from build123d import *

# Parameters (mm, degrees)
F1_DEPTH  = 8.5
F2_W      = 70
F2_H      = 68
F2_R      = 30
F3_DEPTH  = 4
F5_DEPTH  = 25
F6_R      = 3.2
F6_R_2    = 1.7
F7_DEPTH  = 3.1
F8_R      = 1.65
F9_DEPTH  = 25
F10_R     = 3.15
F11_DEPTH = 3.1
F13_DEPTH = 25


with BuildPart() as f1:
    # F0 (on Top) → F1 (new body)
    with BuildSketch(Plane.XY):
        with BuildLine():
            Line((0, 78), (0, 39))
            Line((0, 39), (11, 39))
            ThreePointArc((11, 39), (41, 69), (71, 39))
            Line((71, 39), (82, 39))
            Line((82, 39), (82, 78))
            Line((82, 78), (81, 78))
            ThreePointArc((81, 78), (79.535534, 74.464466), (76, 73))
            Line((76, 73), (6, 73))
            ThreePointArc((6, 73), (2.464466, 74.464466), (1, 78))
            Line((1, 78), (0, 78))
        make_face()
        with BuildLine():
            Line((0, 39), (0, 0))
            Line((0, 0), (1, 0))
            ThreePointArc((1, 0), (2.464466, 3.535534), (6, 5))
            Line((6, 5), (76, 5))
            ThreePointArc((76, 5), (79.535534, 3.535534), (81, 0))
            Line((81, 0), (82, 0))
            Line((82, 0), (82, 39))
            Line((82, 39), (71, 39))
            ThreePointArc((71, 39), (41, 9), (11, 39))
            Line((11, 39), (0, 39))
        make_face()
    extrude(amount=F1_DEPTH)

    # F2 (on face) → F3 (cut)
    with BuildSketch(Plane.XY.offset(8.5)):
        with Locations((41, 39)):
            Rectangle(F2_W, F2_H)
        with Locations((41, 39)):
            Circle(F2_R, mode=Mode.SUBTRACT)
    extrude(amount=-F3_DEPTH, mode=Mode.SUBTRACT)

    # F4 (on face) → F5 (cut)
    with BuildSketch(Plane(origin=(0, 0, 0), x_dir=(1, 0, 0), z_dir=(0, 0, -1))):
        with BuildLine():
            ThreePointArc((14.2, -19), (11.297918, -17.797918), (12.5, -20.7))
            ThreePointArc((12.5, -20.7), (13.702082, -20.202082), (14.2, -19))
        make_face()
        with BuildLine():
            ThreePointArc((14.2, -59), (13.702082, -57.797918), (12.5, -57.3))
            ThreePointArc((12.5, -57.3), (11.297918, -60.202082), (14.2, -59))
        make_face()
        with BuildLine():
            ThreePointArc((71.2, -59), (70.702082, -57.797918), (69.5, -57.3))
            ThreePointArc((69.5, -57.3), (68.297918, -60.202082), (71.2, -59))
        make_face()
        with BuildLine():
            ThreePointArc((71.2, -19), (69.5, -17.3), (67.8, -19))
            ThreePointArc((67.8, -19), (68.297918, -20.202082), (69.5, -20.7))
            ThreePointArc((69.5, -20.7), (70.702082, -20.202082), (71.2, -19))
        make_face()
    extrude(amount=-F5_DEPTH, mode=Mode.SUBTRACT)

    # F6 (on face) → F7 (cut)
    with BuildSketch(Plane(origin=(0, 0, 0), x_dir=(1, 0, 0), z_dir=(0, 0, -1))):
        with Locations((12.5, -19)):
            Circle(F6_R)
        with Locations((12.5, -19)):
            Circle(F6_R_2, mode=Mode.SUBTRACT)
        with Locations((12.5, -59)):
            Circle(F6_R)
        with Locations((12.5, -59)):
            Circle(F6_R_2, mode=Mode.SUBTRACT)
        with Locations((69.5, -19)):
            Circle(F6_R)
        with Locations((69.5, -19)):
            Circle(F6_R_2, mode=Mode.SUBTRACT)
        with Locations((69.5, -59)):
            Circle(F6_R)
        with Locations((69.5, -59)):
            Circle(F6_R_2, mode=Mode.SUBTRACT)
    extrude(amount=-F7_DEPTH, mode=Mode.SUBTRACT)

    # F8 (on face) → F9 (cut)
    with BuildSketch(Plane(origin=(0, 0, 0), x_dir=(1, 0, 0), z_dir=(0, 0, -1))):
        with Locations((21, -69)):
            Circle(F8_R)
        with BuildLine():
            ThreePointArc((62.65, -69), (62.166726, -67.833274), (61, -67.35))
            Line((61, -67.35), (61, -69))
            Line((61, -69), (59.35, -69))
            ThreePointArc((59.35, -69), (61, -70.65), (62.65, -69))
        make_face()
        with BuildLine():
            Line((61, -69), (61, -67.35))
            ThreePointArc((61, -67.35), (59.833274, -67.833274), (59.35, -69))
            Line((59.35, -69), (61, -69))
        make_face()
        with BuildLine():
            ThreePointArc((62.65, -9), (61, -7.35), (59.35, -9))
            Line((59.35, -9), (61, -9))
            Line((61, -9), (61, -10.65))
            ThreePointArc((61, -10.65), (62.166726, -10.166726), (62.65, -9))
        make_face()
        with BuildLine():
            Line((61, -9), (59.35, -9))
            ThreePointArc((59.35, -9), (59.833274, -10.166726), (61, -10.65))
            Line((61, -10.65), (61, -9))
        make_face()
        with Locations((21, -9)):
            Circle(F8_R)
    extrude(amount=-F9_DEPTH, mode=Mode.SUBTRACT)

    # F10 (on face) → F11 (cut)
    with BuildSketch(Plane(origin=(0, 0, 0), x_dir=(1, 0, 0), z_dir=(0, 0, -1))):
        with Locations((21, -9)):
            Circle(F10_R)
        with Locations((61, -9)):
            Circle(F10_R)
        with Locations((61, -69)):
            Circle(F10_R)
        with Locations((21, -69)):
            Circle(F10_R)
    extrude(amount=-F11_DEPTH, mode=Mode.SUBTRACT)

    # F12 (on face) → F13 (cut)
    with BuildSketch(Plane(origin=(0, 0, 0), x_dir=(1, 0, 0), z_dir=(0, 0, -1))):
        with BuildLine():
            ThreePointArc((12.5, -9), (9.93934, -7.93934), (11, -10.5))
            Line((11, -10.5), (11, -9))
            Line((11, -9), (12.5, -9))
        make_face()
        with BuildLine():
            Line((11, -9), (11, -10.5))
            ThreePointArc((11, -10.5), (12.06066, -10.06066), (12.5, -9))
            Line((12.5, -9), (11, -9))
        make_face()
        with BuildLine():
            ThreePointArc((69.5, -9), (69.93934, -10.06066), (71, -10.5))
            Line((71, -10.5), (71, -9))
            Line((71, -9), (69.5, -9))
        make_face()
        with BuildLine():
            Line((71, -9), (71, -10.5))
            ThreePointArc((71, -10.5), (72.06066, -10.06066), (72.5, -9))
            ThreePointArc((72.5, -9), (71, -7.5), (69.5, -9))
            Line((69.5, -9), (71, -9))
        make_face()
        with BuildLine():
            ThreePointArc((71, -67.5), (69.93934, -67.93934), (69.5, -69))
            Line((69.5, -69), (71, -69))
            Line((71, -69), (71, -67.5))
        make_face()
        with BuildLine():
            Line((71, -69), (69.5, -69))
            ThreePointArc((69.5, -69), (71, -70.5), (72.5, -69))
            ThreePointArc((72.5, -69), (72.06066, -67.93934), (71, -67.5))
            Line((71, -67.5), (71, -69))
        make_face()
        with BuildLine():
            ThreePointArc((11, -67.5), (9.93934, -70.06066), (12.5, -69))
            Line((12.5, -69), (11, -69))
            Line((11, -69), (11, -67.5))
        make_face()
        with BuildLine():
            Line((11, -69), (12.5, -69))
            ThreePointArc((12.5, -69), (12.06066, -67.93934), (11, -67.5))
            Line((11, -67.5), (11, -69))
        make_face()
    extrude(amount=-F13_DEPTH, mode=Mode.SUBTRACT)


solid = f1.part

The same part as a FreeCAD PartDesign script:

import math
import FreeCAD as App
import Part
import Sketcher
Q = App.Units.Quantity


def add_polygon(sketch, points):
    """Adds a closed chain of lines whose ends are joined by coincident constraints."""
    first, n = sketch.GeometryCount, len(points)
    for a, b in zip(points, points[1:] + points[:1]):
        sketch.addGeometry(Part.LineSegment(App.Vector(*a, 0), App.Vector(*b, 0)), False)
    for i in range(n):
        sketch.addConstraint(Sketcher.Constraint("Coincident", first + i, 2, first + (i + 1) % n, 1))

doc = App.newDocument("Part")
body = doc.addObject("PartDesign::Body", "Body")

sketch1 = body.newObject("Sketcher::SketchObject", "Sketch")
sketch1.AttachmentSupport = (doc.getObject("XY_Plane"), [""])
sketch1.MapMode = "FlatFace"
sketch1.addGeometry([
    Part.LineSegment(App.Vector(0, 78, 0), App.Vector(0, 0, 0)),
    Part.LineSegment(App.Vector(0, 0, 0), App.Vector(1, 0, 0)),
    Part.ArcOfCircle(Part.Circle(App.Vector(6, 0, 0), App.Vector(0, 0, 1), 5), math.radians(89.999996), math.radians(180.000004)),
    Part.LineSegment(App.Vector(6, 5, 0), App.Vector(76, 5, 0)),
    Part.ArcOfCircle(Part.Circle(App.Vector(76, 0, 0), App.Vector(0, 0, 1), 5), math.radians(-0.000004), math.radians(90.000004)),
    Part.LineSegment(App.Vector(81, 0, 0), App.Vector(82, 0, 0)),
    Part.LineSegment(App.Vector(82, 0, 0), App.Vector(82, 78, 0)),
    Part.LineSegment(App.Vector(82, 78, 0), App.Vector(81, 78, 0)),
    Part.ArcOfCircle(Part.Circle(App.Vector(76, 78, 0), App.Vector(0, 0, 1), 5), math.radians(-90.000004), math.radians(0.000004)),
    Part.LineSegment(App.Vector(76, 73, 0), App.Vector(6, 73, 0)),
    Part.ArcOfCircle(Part.Circle(App.Vector(6, 78, 0), App.Vector(0, 0, 1), 5), math.radians(179.999996), math.radians(270.000004)),
    Part.LineSegment(App.Vector(1, 78, 0), App.Vector(0, 78, 0)),
    Part.Circle(App.Vector(41, 39, 0), App.Vector(0, 0, 1), 30),
], False)
sketch1.addConstraint([
    Sketcher.Constraint("Coincident", 0, 2, 1, 1),
    Sketcher.Constraint("Coincident", 1, 2, 2, 2),
    Sketcher.Constraint("Tangent", 2, 1, 3, 1),
    Sketcher.Constraint("Tangent", 3, 2, 4, 2),
    Sketcher.Constraint("Coincident", 4, 1, 5, 1),
    Sketcher.Constraint("Coincident", 5, 2, 6, 1),
    Sketcher.Constraint("Coincident", 6, 2, 7, 1),
    Sketcher.Constraint("Coincident", 7, 2, 8, 2),
    Sketcher.Constraint("Tangent", 8, 1, 9, 1),
    Sketcher.Constraint("Tangent", 9, 2, 10, 2),
    Sketcher.Constraint("Coincident", 10, 1, 11, 1),
    Sketcher.Constraint("Coincident", 11, 2, 0, 1),
    Sketcher.Constraint("Vertical", 0),
    Sketcher.Constraint("Horizontal", 1),
    Sketcher.Constraint("Horizontal", 3),
    Sketcher.Constraint("Horizontal", 5),
    Sketcher.Constraint("Vertical", 6),
    Sketcher.Constraint("Horizontal", 7),
    Sketcher.Constraint("Horizontal", 9),
    Sketcher.Constraint("Horizontal", 11),
    Sketcher.Constraint("Coincident", 0, 2, -1, 1),
    Sketcher.Constraint("Equal", 2, 4),
    Sketcher.Constraint("Equal", 4, 8),
    Sketcher.Constraint("Equal", 8, 10),
    Sketcher.Constraint("PointOnObject", 2, 3, -1),
    Sketcher.Constraint("PointOnObject", 4, 1, -1),
    Sketcher.Constraint("Horizontal", 10, 3, 6, 2),
    Sketcher.Constraint("Horizontal", 7, 2, 10, 1),
    Sketcher.Constraint("Vertical", 4, 3, 8, 3),
    Sketcher.Constraint("Vertical", 2, 3, 10, 3),
    Sketcher.Constraint("Equal", 1, 5),
    Sketcher.Constraint("Diameter", 12, Q("60 mm")),
    Sketcher.Constraint("Radius", 2, Q("5 mm")),
    Sketcher.Constraint("DistanceX", 1, 1, 1, 2, Q("1 mm")),
    Sketcher.Constraint("DistanceX", 3, 1, 3, 2, Q("70 mm")),
    Sketcher.Constraint("DistanceY", 0, 2, 0, 1, Q("78 mm")),
    Sketcher.Constraint("DistanceX", -1, 1, 12, 3, Q("41 mm")),
    Sketcher.Constraint("DistanceY", -1, 1, 12, 3, Q("39 mm")),
])
pad1 = body.newObject("PartDesign::Pad", "Pad")
pad1.Profile = sketch1
pad1.Length = 8.5

sketch2 = body.newObject("Sketcher::SketchObject", "Sketch001")
sketch2.AttachmentSupport = (doc.getObject("XY_Plane"), [""])
sketch2.MapMode = "FlatFace"
sketch2.AttachmentOffset = App.Placement(App.Vector(0, 0, 8.5), App.Rotation())
add_polygon(sketch2, [(6, 73), (6, 5), (76, 5), (76, 73)])
sketch2.addGeometry(Part.Circle(App.Vector(41, 39, 0), App.Vector(0, 0, 1), 30), False)
sketch2.addConstraint([
    Sketcher.Constraint("Vertical", 0),
    Sketcher.Constraint("Horizontal", 1),
    Sketcher.Constraint("Vertical", 2),
    Sketcher.Constraint("Horizontal", 3),
    Sketcher.Constraint("Diameter", 4, Q("60 mm")),
    Sketcher.Constraint("DistanceX", 1, 1, 1, 2, Q("70 mm")),
    Sketcher.Constraint("DistanceY", 0, 2, 0, 1, Q("68 mm")),
    Sketcher.Constraint("DistanceX", -1, 1, 4, 3, Q("41 mm")),
    Sketcher.Constraint("DistanceY", -1, 1, 4, 3, Q("39 mm")),
    Sketcher.Constraint("DistanceX", -1, 1, 0, 2, Q("6 mm")),
    Sketcher.Constraint("DistanceY", -1, 1, 0, 2, Q("5 mm")),
])
pocket1 = body.newObject("PartDesign::Pocket", "Pocket")
pocket1.Profile = sketch2
pocket1.Length = 4

sketch3 = body.newObject("Sketcher::SketchObject", "Sketch002")
sketch3.AttachmentSupport = (doc.getObject("XY_Plane"), [""])
sketch3.MapMode = "FlatFace"
sketch3.addGeometry([
    Part.ArcOfCircle(Part.Circle(App.Vector(12.5, 19, 0), App.Vector(0, 0, 1), 1.7), math.radians(89.999991), math.radians(360.000009)),
    Part.ArcOfCircle(Part.Circle(App.Vector(12.500002, 19.000002, 0), App.Vector(0, 0, 1), 1.699998), math.radians(-0.000054), math.radians(90.000054)),
    Part.ArcOfCircle(Part.Circle(App.Vector(12.500002, 58.999998, 0), App.Vector(0, 0, 1), 1.699998), math.radians(-90.000054), math.radians(0.000054)),
    Part.ArcOfCircle(Part.Circle(App.Vector(12.5, 59, 0), App.Vector(0, 0, 1), 1.7), math.radians(-0.000009), math.radians(270.000009)),
    Part.ArcOfCircle(Part.Circle(App.Vector(69.500002, 58.999998, 0), App.Vector(0, 0, 1), 1.699998), math.radians(-90.000054), math.radians(0.000054)),
    Part.ArcOfCircle(Part.Circle(App.Vector(69.5, 59, 0), App.Vector(0, 0, 1), 1.7), math.radians(-0.000009), math.radians(270.000009)),
    Part.ArcOfCircle(Part.Circle(App.Vector(69.5, 19, 0), App.Vector(0, 0, 1), 1.7), math.radians(180), math.radians(360)),
    Part.ArcOfCircle(Part.Circle(App.Vector(69.499998, 19.000002, 0), App.Vector(0, 0, 1), 1.699998), math.radians(89.999946), math.radians(180.000054)),
    Part.ArcOfCircle(Part.Circle(App.Vector(69.500002, 19.000002, 0), App.Vector(0, 0, 1), 1.699998), math.radians(-0.000054), math.radians(90.000054)),
], False)
sketch3.addConstraint([
    Sketcher.Constraint("Tangent", 0, 1, 1, 2),
    Sketcher.Constraint("Coincident", 1, 1, 0, 2),
    Sketcher.Constraint("Tangent", 2, 1, 3, 2),
    Sketcher.Constraint("Coincident", 3, 1, 2, 2),
    Sketcher.Constraint("Tangent", 4, 1, 5, 2),
    Sketcher.Constraint("Coincident", 5, 1, 4, 2),
    Sketcher.Constraint("Tangent", 6, 1, 7, 2),
    Sketcher.Constraint("Tangent", 7, 1, 8, 2),
    Sketcher.Constraint("Tangent", 8, 1, 6, 2),
    Sketcher.Constraint("Equal", 1, 2),
    Sketcher.Constraint("Equal", 3, 4),
    Sketcher.Constraint("Equal", 5, 6),
    Sketcher.Constraint("Horizontal", 3, 3, 4, 3),
    Sketcher.Constraint("Horizontal", 1, 3, 6, 3),
    Sketcher.Constraint("Horizontal", 8, 3, 1, 1),
    Sketcher.Constraint("Horizontal", 5, 3, 3, 1),
    Sketcher.Constraint("Horizontal", 3, 1, 5, 1),
    Sketcher.Constraint("Horizontal", 1, 1, 6, 1),
    Sketcher.Constraint("Horizontal", 6, 1, 8, 1),
    Sketcher.Constraint("Vertical", 1, 3, 2, 3),
    Sketcher.Constraint("Vertical", 5, 3, 6, 3),
    Sketcher.Constraint("Vertical", 3, 3, 0, 1),
    Sketcher.Constraint("Vertical", 0, 1, 2, 1),
    Sketcher.Constraint("Vertical", 8, 3, 4, 1),
    Sketcher.Constraint("Vertical", 4, 1, 7, 1),
    Sketcher.Constraint("Radius", 0, Q("1.7 mm")),
    Sketcher.Constraint("DistanceY", -1, 1, 0, 3, Q("19 mm")),
    Sketcher.Constraint("DistanceY", -1, 1, 2, 3, Q("58.999998 mm")),
    Sketcher.Constraint("DistanceX", 2, 3, 4, 3, Q("57 mm")),
    Sketcher.Constraint("DistanceX", -1, 1, 0, 3, Q("12.5 mm")),
])
pocket2 = body.newObject("PartDesign::Pocket", "Pocket001")
pocket2.Profile = sketch3
pocket2.Length = 25
pocket2.Reversed = True

sketch4 = body.newObject("Sketcher::SketchObject", "Sketch003")
sketch4.AttachmentSupport = (doc.getObject("XY_Plane"), [""])
sketch4.MapMode = "FlatFace"
sketch4.addGeometry([
    Part.Circle(App.Vector(12.5, 19, 0), App.Vector(0, 0, 1), 3.2),
    Part.Circle(App.Vector(12.5, 19, 0), App.Vector(0, 0, 1), 1.7),
    Part.Circle(App.Vector(12.5, 59, 0), App.Vector(0, 0, 1), 3.2),
    Part.Circle(App.Vector(12.5, 59, 0), App.Vector(0, 0, 1), 1.7),
    Part.Circle(App.Vector(69.5, 19, 0), App.Vector(0, 0, 1), 3.2),
    Part.Circle(App.Vector(69.5, 19, 0), App.Vector(0, 0, 1), 1.7),
    Part.Circle(App.Vector(69.5, 59, 0), App.Vector(0, 0, 1), 3.2),
    Part.Circle(App.Vector(69.5, 59, 0), App.Vector(0, 0, 1), 1.7),
], False)
sketch4.addConstraint([
    Sketcher.Constraint("Coincident", 1, 3, 0, 3),
    Sketcher.Constraint("Coincident", 3, 3, 2, 3),
    Sketcher.Constraint("Coincident", 5, 3, 4, 3),
    Sketcher.Constraint("Coincident", 7, 3, 6, 3),
    Sketcher.Constraint("Equal", 0, 2),
    Sketcher.Constraint("Equal", 1, 3),
    Sketcher.Constraint("Equal", 2, 4),
    Sketcher.Constraint("Equal", 3, 5),
    Sketcher.Constraint("Equal", 4, 6),
    Sketcher.Constraint("Equal", 5, 7),
    Sketcher.Constraint("Horizontal", 1, 3, 4, 3),
    Sketcher.Constraint("Horizontal", 3, 3, 6, 3),
    Sketcher.Constraint("Vertical", 1, 3, 2, 3),
    Sketcher.Constraint("Vertical", 5, 3, 6, 3),
    Sketcher.Constraint("Diameter", 0, Q("6.4 mm")),
    Sketcher.Constraint("Diameter", 1, Q("3.4 mm")),
    Sketcher.Constraint("DistanceY", -1, 1, 0, 3, Q("19 mm")),
    Sketcher.Constraint("DistanceY", -1, 1, 2, 3, Q("59 mm")),
    Sketcher.Constraint("DistanceX", 0, 3, 4, 3, Q("57 mm")),
    Sketcher.Constraint("DistanceX", -1, 1, 0, 3, Q("12.5 mm")),
])
pocket3 = body.newObject("PartDesign::Pocket", "Pocket002")
pocket3.Profile = sketch4
pocket3.Length = 3.1
pocket3.Reversed = True

sketch5 = body.newObject("Sketcher::SketchObject", "Sketch004")
sketch5.AttachmentSupport = (doc.getObject("XY_Plane"), [""])
sketch5.MapMode = "FlatFace"
sketch5.addGeometry([
    Part.Circle(App.Vector(21, 69, 0), App.Vector(0, 0, 1), 1.65),
    Part.ArcOfCircle(Part.Circle(App.Vector(60.999999, 69.000001, 0), App.Vector(0, 0, 1), 1.650001), math.radians(-89.999978), math.radians(-0.000022)),
    Part.ArcOfCircle(Part.Circle(App.Vector(61.000001, 69.000001, 0), App.Vector(0, 0, 1), 1.650001), math.radians(-179.999978), math.radians(-90.000022)),
    Part.ArcOfCircle(Part.Circle(App.Vector(61, 69, 0), App.Vector(0, 0, 1), 1.65), math.radians(0), math.radians(180)),
    Part.ArcOfCircle(Part.Circle(App.Vector(61, 9, 0), App.Vector(0, 0, 1), 1.65), math.radians(180), math.radians(360)),
    Part.ArcOfCircle(Part.Circle(App.Vector(61.000001, 8.999999, 0), App.Vector(0, 0, 1), 1.650001), math.radians(90.000022), math.radians(179.999978)),
    Part.ArcOfCircle(Part.Circle(App.Vector(60.999999, 8.999999, 0), App.Vector(0, 0, 1), 1.650001), math.radians(0.000022), math.radians(89.999978)),
    Part.Circle(App.Vector(21, 9, 0), App.Vector(0, 0, 1), 1.65),
], False)
sketch5.addConstraint([
    Sketcher.Constraint("Tangent", 1, 1, 2, 2),
    Sketcher.Constraint("Tangent", 2, 1, 3, 2),
    Sketcher.Constraint("Tangent", 3, 1, 1, 2),
    Sketcher.Constraint("Tangent", 4, 1, 5, 2),
    Sketcher.Constraint("Tangent", 5, 1, 6, 2),
    Sketcher.Constraint("Tangent", 6, 1, 4, 2),
    Sketcher.Constraint("Equal", 0, 1),
    Sketcher.Constraint("Equal", 3, 4),
    Sketcher.Constraint("Equal", 6, 7),
    Sketcher.Constraint("Horizontal", 0, 3, 1, 3),
    Sketcher.Constraint("Horizontal", 6, 3, 7, 3),
    Sketcher.Constraint("Horizontal", 3, 3, 2, 1),
    Sketcher.Constraint("Horizontal", 2, 1, 3, 1),
    Sketcher.Constraint("Horizontal", 7, 3, 4, 1),
    Sketcher.Constraint("Horizontal", 4, 1, 6, 1),
    Sketcher.Constraint("Vertical", 3, 3, 4, 3),
    Sketcher.Constraint("Vertical", 0, 3, 7, 3),
    Sketcher.Constraint("Vertical", 6, 3, 1, 1),
    Sketcher.Constraint("Vertical", 1, 1, 5, 1),
    Sketcher.Constraint("Diameter", 0, Q("3.3 mm")),
    Sketcher.Constraint("DistanceX", -1, 1, 0, 3, Q("21 mm")),
    Sketcher.Constraint("DistanceY", -1, 1, 0, 3, Q("69 mm")),
    Sketcher.Constraint("DistanceX", -1, 1, 1, 3, Q("60.999999 mm")),
    Sketcher.Constraint("DistanceY", -1, 1, 4, 3, Q("9 mm")),
])
pocket4 = body.newObject("PartDesign::Pocket", "Pocket003")
pocket4.Profile = sketch5
pocket4.Length = 25
pocket4.Reversed = True

sketch6 = body.newObject("Sketcher::SketchObject", "Sketch005")
sketch6.AttachmentSupport = (doc.getObject("XY_Plane"), [""])
sketch6.MapMode = "FlatFace"
sketch6.addGeometry([
    Part.Circle(App.Vector(21, 9, 0), App.Vector(0, 0, 1), 3.15),
    Part.Circle(App.Vector(61, 9, 0), App.Vector(0, 0, 1), 3.15),
    Part.Circle(App.Vector(61, 69, 0), App.Vector(0, 0, 1), 3.15),
    Part.Circle(App.Vector(21, 69, 0), App.Vector(0, 0, 1), 3.15),
], False)
sketch6.addConstraint([
    Sketcher.Constraint("Equal", 0, 1),
    Sketcher.Constraint("Equal", 1, 2),
    Sketcher.Constraint("Equal", 2, 3),
    Sketcher.Constraint("Horizontal", 0, 3, 1, 3),
    Sketcher.Constraint("Horizontal", 2, 3, 3, 3),
    Sketcher.Constraint("Vertical", 1, 3, 2, 3),
    Sketcher.Constraint("Vertical", 0, 3, 3, 3),
    Sketcher.Constraint("Diameter", 0, Q("6.3 mm")),
    Sketcher.Constraint("DistanceX", -1, 1, 0, 3, Q("21 mm")),
    Sketcher.Constraint("DistanceY", -1, 1, 0, 3, Q("9 mm")),
    Sketcher.Constraint("DistanceX", -1, 1, 1, 3, Q("61 mm")),
    Sketcher.Constraint("DistanceY", -1, 1, 2, 3, Q("69 mm")),
])
pocket5 = body.newObject("PartDesign::Pocket", "Pocket004")
pocket5.Profile = sketch6
pocket5.Length = 3.1
pocket5.Reversed = True

sketch7 = body.newObject("Sketcher::SketchObject", "Sketch006")
sketch7.AttachmentSupport = (doc.getObject("XY_Plane"), [""])
sketch7.MapMode = "FlatFace"
sketch7.addGeometry([
    Part.ArcOfCircle(Part.Circle(App.Vector(11, 9, 0), App.Vector(0, 0, 1), 1.5), math.radians(90.000004), math.radians(359.999996)),
    Part.ArcOfCircle(Part.Circle(App.Vector(10.999999, 8.999999, 0), App.Vector(0, 0, 1), 1.500001), math.radians(0.000022), math.radians(89.999978)),
    Part.ArcOfCircle(Part.Circle(App.Vector(71.000001, 8.999999, 0), App.Vector(0, 0, 1), 1.500001), math.radians(90.000022), math.radians(179.999978)),
    Part.ArcOfCircle(Part.Circle(App.Vector(70.999999, 8.999999, 0), App.Vector(0, 0, 1), 1.500001), math.radians(0.000022), math.radians(89.999978)),
    Part.ArcOfCircle(Part.Circle(App.Vector(71, 9, 0), App.Vector(0, 0, 1), 1.5), math.radians(180), math.radians(360)),
    Part.ArcOfCircle(Part.Circle(App.Vector(71.000001, 69.000001, 0), App.Vector(0, 0, 1), 1.500001), math.radians(-179.999978), math.radians(-90.000022)),
    Part.ArcOfCircle(Part.Circle(App.Vector(71, 69, 0), App.Vector(0, 0, 1), 1.5), math.radians(0), math.radians(180)),
    Part.ArcOfCircle(Part.Circle(App.Vector(70.999999, 69.000001, 0), App.Vector(0, 0, 1), 1.500001), math.radians(-89.999978), math.radians(-0.000022)),
    Part.ArcOfCircle(Part.Circle(App.Vector(11, 69, 0), App.Vector(0, 0, 1), 1.5), math.radians(0.000004), math.radians(269.999996)),
    Part.ArcOfCircle(Part.Circle(App.Vector(10.999999, 69.000001, 0), App.Vector(0, 0, 1), 1.500001), math.radians(-89.999978), math.radians(-0.000022)),
], False)
sketch7.addConstraint([
    Sketcher.Constraint("Tangent", 0, 1, 1, 2),
    Sketcher.Constraint("Coincident", 1, 1, 0, 2),
    Sketcher.Constraint("Tangent", 2, 1, 3, 2),
    Sketcher.Constraint("Tangent", 3, 1, 4, 2),
    Sketcher.Constraint("Tangent", 4, 1, 2, 2),
    Sketcher.Constraint("Tangent", 5, 1, 6, 2),
    Sketcher.Constraint("Tangent", 6, 1, 7, 2),
    Sketcher.Constraint("Tangent", 7, 1, 5, 2),
    Sketcher.Constraint("Tangent", 8, 1, 9, 2),
    Sketcher.Constraint("Coincident", 9, 1, 8, 2),
    Sketcher.Constraint("Equal", 1, 2),
    Sketcher.Constraint("Equal", 4, 5),
    Sketcher.Constraint("Equal", 7, 8),
    Sketcher.Constraint("Horizontal", 1, 3, 2, 3),
    Sketcher.Constraint("Horizontal", 7, 3, 8, 3),
    Sketcher.Constraint("Horizontal", 4, 3, 1, 1),
    Sketcher.Constraint("Horizontal", 1, 1, 3, 1),
    Sketcher.Constraint("Horizontal", 3, 1, 4, 1),
    Sketcher.Constraint("Horizontal", 9, 3, 5, 1),
    Sketcher.Constraint("Horizontal", 5, 1, 6, 1),
    Sketcher.Constraint("Horizontal", 6, 1, 8, 1),
    Sketcher.Constraint("Vertical", 4, 3, 5, 3),
    Sketcher.Constraint("Vertical", 1, 3, 8, 3),
    Sketcher.Constraint("Vertical", 9, 3, 0, 1),
    Sketcher.Constraint("Vertical", 7, 3, 2, 1),
    Sketcher.Constraint("Vertical", 2, 1, 7, 1),
    Sketcher.Constraint("Vertical", 0, 1, 9, 1),
    Sketcher.Constraint("Radius", 0, Q("1.5 mm")),
    Sketcher.Constraint("DistanceX", -1, 1, 0, 3, Q("11 mm")),
    Sketcher.Constraint("DistanceY", -1, 1, 0, 3, Q("9 mm")),
    Sketcher.Constraint("DistanceX", -1, 1, 2, 3, Q("71.000001 mm")),
    Sketcher.Constraint("DistanceY", -1, 1, 5, 3, Q("69.000001 mm")),
])
pocket6 = body.newObject("PartDesign::Pocket", "Pocket005")
pocket6.Profile = sketch7
pocket6.Length = 25
pocket6.Reversed = True

doc.recompute()
